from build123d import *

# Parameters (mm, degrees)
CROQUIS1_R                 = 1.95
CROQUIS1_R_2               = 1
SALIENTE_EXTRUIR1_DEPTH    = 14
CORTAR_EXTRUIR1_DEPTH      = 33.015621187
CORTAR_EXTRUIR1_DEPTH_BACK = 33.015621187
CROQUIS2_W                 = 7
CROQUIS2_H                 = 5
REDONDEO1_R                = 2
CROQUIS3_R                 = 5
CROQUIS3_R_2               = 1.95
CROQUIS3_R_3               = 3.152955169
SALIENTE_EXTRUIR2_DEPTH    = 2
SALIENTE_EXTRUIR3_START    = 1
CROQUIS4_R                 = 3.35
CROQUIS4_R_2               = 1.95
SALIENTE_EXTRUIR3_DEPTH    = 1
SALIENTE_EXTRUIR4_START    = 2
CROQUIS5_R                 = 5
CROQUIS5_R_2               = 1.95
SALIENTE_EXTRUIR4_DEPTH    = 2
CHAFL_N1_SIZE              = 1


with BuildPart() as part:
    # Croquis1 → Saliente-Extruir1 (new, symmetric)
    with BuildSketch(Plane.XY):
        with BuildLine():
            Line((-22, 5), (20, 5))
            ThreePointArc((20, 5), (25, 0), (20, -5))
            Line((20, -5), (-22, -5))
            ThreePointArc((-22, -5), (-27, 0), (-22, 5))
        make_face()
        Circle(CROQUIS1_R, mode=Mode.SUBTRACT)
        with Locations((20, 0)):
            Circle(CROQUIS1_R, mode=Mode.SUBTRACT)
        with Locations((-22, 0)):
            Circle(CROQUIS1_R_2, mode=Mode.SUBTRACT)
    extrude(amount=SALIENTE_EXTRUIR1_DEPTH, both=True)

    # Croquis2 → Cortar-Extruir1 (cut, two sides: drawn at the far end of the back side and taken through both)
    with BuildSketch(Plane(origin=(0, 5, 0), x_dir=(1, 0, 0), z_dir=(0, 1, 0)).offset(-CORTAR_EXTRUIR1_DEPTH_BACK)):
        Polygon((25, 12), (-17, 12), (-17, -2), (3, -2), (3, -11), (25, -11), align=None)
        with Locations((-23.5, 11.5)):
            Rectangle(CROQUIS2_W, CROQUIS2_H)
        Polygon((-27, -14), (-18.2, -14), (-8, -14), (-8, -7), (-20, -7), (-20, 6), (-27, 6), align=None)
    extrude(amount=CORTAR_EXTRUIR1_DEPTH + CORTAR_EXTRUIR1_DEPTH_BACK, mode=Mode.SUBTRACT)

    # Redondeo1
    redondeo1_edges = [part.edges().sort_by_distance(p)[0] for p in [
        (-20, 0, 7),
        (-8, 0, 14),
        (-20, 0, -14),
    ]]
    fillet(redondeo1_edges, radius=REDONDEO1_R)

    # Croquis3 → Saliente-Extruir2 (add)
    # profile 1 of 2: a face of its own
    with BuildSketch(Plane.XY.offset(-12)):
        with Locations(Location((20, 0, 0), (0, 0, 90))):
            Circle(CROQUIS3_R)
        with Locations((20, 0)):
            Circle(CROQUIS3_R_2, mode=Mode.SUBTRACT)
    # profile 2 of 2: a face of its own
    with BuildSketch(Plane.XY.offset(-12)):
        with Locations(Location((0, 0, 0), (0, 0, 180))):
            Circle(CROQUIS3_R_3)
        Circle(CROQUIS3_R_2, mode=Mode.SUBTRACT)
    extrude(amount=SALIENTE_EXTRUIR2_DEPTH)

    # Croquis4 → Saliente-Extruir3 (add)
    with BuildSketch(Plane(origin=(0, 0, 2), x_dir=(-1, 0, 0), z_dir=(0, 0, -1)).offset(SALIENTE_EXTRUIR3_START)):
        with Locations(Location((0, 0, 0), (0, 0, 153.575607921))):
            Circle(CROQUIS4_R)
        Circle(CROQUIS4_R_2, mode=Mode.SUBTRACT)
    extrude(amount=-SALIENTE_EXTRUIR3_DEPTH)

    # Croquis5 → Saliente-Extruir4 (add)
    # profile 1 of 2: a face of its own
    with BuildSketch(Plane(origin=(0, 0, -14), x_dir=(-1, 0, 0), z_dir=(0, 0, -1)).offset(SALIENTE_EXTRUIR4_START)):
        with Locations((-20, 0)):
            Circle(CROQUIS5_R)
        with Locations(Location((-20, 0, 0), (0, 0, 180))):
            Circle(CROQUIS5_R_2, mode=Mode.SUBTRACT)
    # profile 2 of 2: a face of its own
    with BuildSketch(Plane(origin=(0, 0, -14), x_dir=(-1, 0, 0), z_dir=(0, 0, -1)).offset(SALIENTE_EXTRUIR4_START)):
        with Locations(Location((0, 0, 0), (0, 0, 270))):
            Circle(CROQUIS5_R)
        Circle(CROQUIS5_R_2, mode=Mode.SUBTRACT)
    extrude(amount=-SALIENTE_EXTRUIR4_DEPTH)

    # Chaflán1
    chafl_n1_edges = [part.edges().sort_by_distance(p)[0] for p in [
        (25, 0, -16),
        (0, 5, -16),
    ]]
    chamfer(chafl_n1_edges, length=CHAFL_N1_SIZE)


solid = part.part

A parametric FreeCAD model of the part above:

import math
import FreeCAD as App
import Part
import Sketcher
from FreeCAD import Vector
Q = App.Units.Quantity


def edges_at(feature, points):
    """Names of the edges that pass closest to the given points."""
    edges = feature.Shape.Edges
    near = lambda p: min(range(len(edges)), key=lambda i: edges[i].distToShape(Part.Vertex(*p))[0])
    return sorted({f"Edge{near(p) + 1}" for p in points})


def add_polygon(sketch, points):
    """Adds a closed chain of lines whose ends are joined by coincident constraints."""
    first, n = sketch.GeometryCount, len(points)
    for a, b in zip(points, points[1:] + points[:1]):
        sketch.addGeometry(Part.LineSegment(App.Vector(*a, 0), App.Vector(*b, 0)), False)
    for i in range(n):
        sketch.addConstraint(Sketcher.Constraint("Coincident", first + i, 2, first + (i + 1) % n, 1))

doc = App.newDocument("Part")
body = doc.addObject("PartDesign::Body", "Body")

# Sketch on XY plane
sketch1 = doc.addObject("Sketcher::SketchObject", "Sketch")
body.addObject(sketch1)
sketch1.AttachmentSupport = (doc.XY_Plane, [""])
sketch1.MapMode = "FlatFace"
sketch1.addGeometry(Part.LineSegment(Vector(20, 5, 0), Vector(-22, 5, 0)), False)
sketch1.addGeometry(Part.ArcOfCircle(Part.Circle(Vector(-22, 0, 0), Vector(0, 0, 1), 5), math.radians(90), math.radians(270)), False)
sketch1.addGeometry(Part.LineSegment(Vector(-22, -5, 0), Vector(20, -5, 0)), False)
sketch1.addGeometry(Part.ArcOfCircle(Part.Circle(Vector(20, 0, 0), Vector(0, 0, 1), 5), math.radians(-90), math.radians(90)), False)
sketch1.addGeometry(Part.Circle(Vector(20, 0, 0), Vector(0, 0, 1), 1.9), False)
sketch1.addGeometry(Part.Circle(Vector(0, 0, 0), Vector(0, 0, 1), 1.9), False)
sketch1.addGeometry(Part.Circle(Vector(-22, 0, 0), Vector(0, 0, 1), 1), False)
sketch1.addConstraint(Sketcher.Constraint("Tangent", 0, 2, 1, 1))
sketch1.addConstraint(Sketcher.Constraint("Tangent", 1, 2, 2, 1))
sketch1.addConstraint(Sketcher.Constraint("Tangent", 2, 2, 3, 1))
sketch1.addConstraint(Sketcher.Constraint("Tangent", 3, 2, 0, 1))
sketch1.addConstraint(Sketcher.Constraint("Horizontal", 0))
sketch1.addConstraint(Sketcher.Constraint("Horizontal", 2))
sketch1.addConstraint(Sketcher.Constraint("Coincident", 5, 3, -1, 1))
sketch1.addConstraint(Sketcher.Constraint("Coincident", 4, 3, 3, 3))
sketch1.addConstraint(Sketcher.Constraint("Coincident", 6, 3, 1, 3))
sketch1.addConstraint(Sketcher.Constraint("Equal", 4, 5))
sketch1.addConstraint(Sketcher.Constraint("PointOnObject", 1, 3, -1))
sketch1.addConstraint(Sketcher.Constraint("Diameter", 6, Q("2 mm")))
sketch1.addConstraint(Sketcher.Constraint("Radius", 1, Q("5 mm")))
sketch1.addConstraint(Sketcher.Constraint("Diameter", 4, Q("3.9 mm")))
sketch1.addConstraint(Sketcher.Constraint("DistanceX", 0, 2, 0, 1, Q("42 mm")))
sketch1.addConstraint(Sketcher.Constraint("DistanceX", 1, 3, -1, 1, Q("22 mm")))
pad1 = doc.addObject("PartDesign::Pad", "Pad")
body.addObject(pad1)
pad1.Profile = sketch1
pad1.Length = 28
pad1.Midplane = True

# Sketch on XZ plane
sketch2 = doc.addObject("Sketcher::SketchObject", "Sketch001")
body.addObject(sketch2)
sketch2.AttachmentSupport = (doc.XZ_Plane, [""])
sketch2.MapMode = "FlatFace"
sketch2.AttachmentOffset = App.Placement(Vector(0, 0, -5), App.Rotation())
add_polygon(sketch2, [(25, -12), (-17, -12), (-17, 2), (3, 2), (3, 11), (25, 11)])  # lines 0-5
add_polygon(sketch2, [(-27, -14), (-27, -9), (-20, -9), (-20, -14)])  # lines 6-9
add_polygon(sketch2, [(-27, 14), (-8, 14), (-8, 7), (-20, 7), (-20, -6), (-27, -6)])  # lines 10-15
sketch2.addConstraint(Sketcher.Constraint("Horizontal", 0))
sketch2.addConstraint(Sketcher.Constraint("Vertical", 1))
sketch2.addConstraint(Sketcher.Constraint("Horizontal", 2))
sketch2.addConstraint(Sketcher.Constraint("Vertical", 3))
sketch2.addConstraint(Sketcher.Constraint("Horizontal", 4))
sketch2.addConstraint(Sketcher.Constraint("Vertical", 5))
sketch2.addConstraint(Sketcher.Constraint("Vertical", 6))
sketch2.addConstraint(Sketcher.Constraint("Horizontal", 7))
sketch2.addConstraint(Sketcher.Constraint("Vertical", 8))
sketch2.addConstraint(Sketcher.Constraint("Horizontal", 9))
sketch2.addConstraint(Sketcher.Constraint("Horizontal", 10))
sketch2.addConstraint(Sketcher.Constraint("Vertical", 11))
sketch2.addConstraint(Sketcher.Constraint("Horizontal", 12))
sketch2.addConstraint(Sketcher.Constraint("Vertical", 13))
sketch2.addConstraint(Sketcher.Constraint("Horizontal", 14))
sketch2.addConstraint(Sketcher.Constraint("Vertical", 15))
sketch2.addConstraint(Sketcher.Constraint("Symmetric", 9, 2, 15, 2, -1))
sketch2.addConstraint(Sketcher.Constraint("Vertical", 8, 2, 12, 2))
sketch2.addConstraint(Sketcher.Constraint("Equal", 14, 11))
sketch2.addConstraint(Sketcher.Constraint("Equal", 2, 15))
sketch2.addConstraint(Sketcher.Constraint("DistanceX", 0, 2, 0, 1, Q("42 mm")))
sketch2.addConstraint(Sketcher.Constraint("DistanceX", 2, 1, 2, 2, Q("20 mm")))
sketch2.addConstraint(Sketcher.Constraint("DistanceX", 7, 1, 7, 2, Q("7 mm")))
sketch2.addConstraint(Sketcher.Constraint("DistanceX", 10, 1, 10, 2, Q("19 mm")))
sketch2.addConstraint(Sketcher.Constraint("DistanceY", 1, 1, 1, 2, Q("14 mm")))
sketch2.addConstraint(Sketcher.Constraint("DistanceY", 3, 1, 3, 2, Q("9 mm")))
sketch2.addConstraint(Sketcher.Constraint("DistanceY", 6, 1, 6, 2, Q("5 mm")))
sketch2.addConstraint(Sketcher.Constraint("DistanceX", 0, 2, -1, 1, Q("17 mm")))
sketch2.addConstraint(Sketcher.Constraint("DistanceY", 0, 2, -1, 1, Q("12 mm")))
sketch2.addConstraint(Sketcher.Constraint("DistanceX", 6, 2, -1, 1, Q("27 mm")))
sketch2.addConstraint(Sketcher.Constraint("DistanceY", 6, 2, -1, 1, Q("9 mm")))
pocket1 = doc.addObject("PartDesign::Pocket", "Pocket")
body.addObject(pocket1)
pocket1.Profile = sketch2
pocket1.Type = "ThroughAll"
pocket1.Midplane = True
doc.recompute()

fillet = doc.addObject("PartDesign::Fillet", "Fillet")
body.addObject(fillet)
fillet.Base = (pocket1, edges_at(pocket1, [(-20, 0, 7), (-8, 0, 14), (-20, 0, -14)]))
fillet.Radius = 2

# Sketch on XY plane
sketch3 = doc.addObject("Sketcher::SketchObject", "Sketch002")
body.addObject(sketch3)
sketch3.AttachmentSupport = (doc.XY_Plane, [""])
sketch3.MapMode = "FlatFace"
sketch3.AttachmentOffset = App.Placement(Vector(0, 0, -12), App.Rotation())
sketch3.addGeometry(Part.Circle(Vector(20, 0, 0), Vector(0, 0, 1), 5), False)
sketch3.addGeometry(Part.Circle(Vector(20, 0, 0), Vector(0, 0, 1), 1.9), False)
sketch3.addGeometry(Part.Circle(Vector(0, 0, 0), Vector(0, 0, 1), 3.2), False)
sketch3.addGeometry(Part.Circle(Vector(0, 0, 0), Vector(0, 0, 1), 1.9), False)
sketch3.addConstraint(Sketcher.Constraint("Coincident", 2, 3, -1, 1))
sketch3.addConstraint(Sketcher.Constraint("Coincident", 3, 3, -1, 1))
sketch3.addConstraint(Sketcher.Constraint("Coincident", 1, 3, 0, 3))
sketch3.addConstraint(Sketcher.Constraint("Equal", 1, 3))
sketch3.addConstraint(Sketcher.Constraint("PointOnObject", 0, 3, -1))
sketch3.addConstraint(Sketcher.Constraint("Diameter", 0, Q("10 mm")))
sketch3.addConstraint(Sketcher.Constraint("Diameter", 1, Q("3.9 mm")))
sketch3.addConstraint(Sketcher.Constraint("DistanceX", -1, 1, 0, 3, Q("20 mm")))
sketch3.addConstraint(Sketcher.Constraint("Diameter", 2, Q("6.30591 mm")))
pad2 = doc.addObject("PartDesign::Pad", "Pad001")
body.addObject(pad2)
pad2.Profile = sketch3
pad2.Length = 2

# Sketch on XY plane
sketch4 = doc.addObject("Sketcher::SketchObject", "Sketch003")
body.addObject(sketch4)
sketch4.AttachmentSupport = (doc.XY_Plane, [""])
sketch4.MapMode = "FlatFace"
sketch4.AttachmentOffset = App.Placement(Vector(0, 0, 1), App.Rotation())
sketch4.addGeometry(Part.Circle(Vector(0, 0, 0), Vector(0, 0, 1), 3.4), False)
sketch4.addGeometry(Part.Circle(Vector(0, 0, 0), Vector(0, 0, 1), 1.9), False)
sketch4.addConstraint(Sketcher.Constraint("Coincident", 0, 3, -1, 1))
sketch4.addConstraint(Sketcher.Constraint("Coincident", 1, 3, -1, 1))
sketch4.addConstraint(Sketcher.Constraint("Diameter", 0, Q("6.7 mm")))
sketch4.addConstraint(Sketcher.Constraint("Diameter", 1, Q("3.9 mm")))
pad3 = doc.addObject("PartDesign::Pad", "Pad002")
body.addObject(pad3)
pad3.Profile = sketch4
pad3.Length = 1

# Sketch on XY plane
sketch5 = doc.addObject("Sketcher::SketchObject", "Sketch004")
body.addObject(sketch5)
sketch5.AttachmentSupport = (doc.XY_Plane, [""])
sketch5.MapMode = "FlatFace"
sketch5.AttachmentOffset = App.Placement(Vector(0, 0, -16), App.Rotation())
sketch5.addGeometry(Part.Circle(Vector(20, 0, 0), Vector(0, 0, 1), 5), False)
sketch5.addGeometry(Part.Circle(Vector(20, 0, 0), Vector(0, 0, 1), 1.9), False)
sketch5.addGeometry(Part.Circle(Vector(0, 0, 0), Vector(0, 0, 1), 5), False)
sketch5.addGeometry(Part.Circle(Vector(0, 0, 0), Vector(0, 0, 1), 1.9), False)
sketch5.addConstraint(Sketcher.Constraint("Coincident", 2, 3, -1, 1))
sketch5.addConstraint(Sketcher.Constraint("Coincident", 3, 3, -1, 1))
sketch5.addConstraint(Sketcher.Constraint("Coincident", 1, 3, 0, 3))
sketch5.addConstraint(Sketcher.Constraint("Equal", 0, 2))
sketch5.addConstraint(Sketcher.Constraint("Equal", 1, 3))
sketch5.addConstraint(Sketcher.Constraint("PointOnObject", 0, 3, -1))
sketch5.addConstraint(Sketcher.Constraint("Diameter", 0, Q("10 mm")))
sketch5.addConstraint(Sketcher.Constraint("Diameter", 1, Q("3.9 mm")))
sketch5.addConstraint(Sketcher.Constraint("DistanceX", -1, 1, 0, 3, Q("20 mm")))
pad4 = doc.addObject("PartDesign::Pad", "Pad003")
body.addObject(pad4)
pad4.Profile = sketch5
pad4.Length = 2
doc.recompute()

chamfer = doc.addObject("PartDesign::Chamfer", "Chamfer")
body.addObject(chamfer)
chamfer.Base = (pad4, edges_at(pad4, [(25, 0, -16), (0, 5, -16)]))
chamfer.Size = 1

doc.recompute()
